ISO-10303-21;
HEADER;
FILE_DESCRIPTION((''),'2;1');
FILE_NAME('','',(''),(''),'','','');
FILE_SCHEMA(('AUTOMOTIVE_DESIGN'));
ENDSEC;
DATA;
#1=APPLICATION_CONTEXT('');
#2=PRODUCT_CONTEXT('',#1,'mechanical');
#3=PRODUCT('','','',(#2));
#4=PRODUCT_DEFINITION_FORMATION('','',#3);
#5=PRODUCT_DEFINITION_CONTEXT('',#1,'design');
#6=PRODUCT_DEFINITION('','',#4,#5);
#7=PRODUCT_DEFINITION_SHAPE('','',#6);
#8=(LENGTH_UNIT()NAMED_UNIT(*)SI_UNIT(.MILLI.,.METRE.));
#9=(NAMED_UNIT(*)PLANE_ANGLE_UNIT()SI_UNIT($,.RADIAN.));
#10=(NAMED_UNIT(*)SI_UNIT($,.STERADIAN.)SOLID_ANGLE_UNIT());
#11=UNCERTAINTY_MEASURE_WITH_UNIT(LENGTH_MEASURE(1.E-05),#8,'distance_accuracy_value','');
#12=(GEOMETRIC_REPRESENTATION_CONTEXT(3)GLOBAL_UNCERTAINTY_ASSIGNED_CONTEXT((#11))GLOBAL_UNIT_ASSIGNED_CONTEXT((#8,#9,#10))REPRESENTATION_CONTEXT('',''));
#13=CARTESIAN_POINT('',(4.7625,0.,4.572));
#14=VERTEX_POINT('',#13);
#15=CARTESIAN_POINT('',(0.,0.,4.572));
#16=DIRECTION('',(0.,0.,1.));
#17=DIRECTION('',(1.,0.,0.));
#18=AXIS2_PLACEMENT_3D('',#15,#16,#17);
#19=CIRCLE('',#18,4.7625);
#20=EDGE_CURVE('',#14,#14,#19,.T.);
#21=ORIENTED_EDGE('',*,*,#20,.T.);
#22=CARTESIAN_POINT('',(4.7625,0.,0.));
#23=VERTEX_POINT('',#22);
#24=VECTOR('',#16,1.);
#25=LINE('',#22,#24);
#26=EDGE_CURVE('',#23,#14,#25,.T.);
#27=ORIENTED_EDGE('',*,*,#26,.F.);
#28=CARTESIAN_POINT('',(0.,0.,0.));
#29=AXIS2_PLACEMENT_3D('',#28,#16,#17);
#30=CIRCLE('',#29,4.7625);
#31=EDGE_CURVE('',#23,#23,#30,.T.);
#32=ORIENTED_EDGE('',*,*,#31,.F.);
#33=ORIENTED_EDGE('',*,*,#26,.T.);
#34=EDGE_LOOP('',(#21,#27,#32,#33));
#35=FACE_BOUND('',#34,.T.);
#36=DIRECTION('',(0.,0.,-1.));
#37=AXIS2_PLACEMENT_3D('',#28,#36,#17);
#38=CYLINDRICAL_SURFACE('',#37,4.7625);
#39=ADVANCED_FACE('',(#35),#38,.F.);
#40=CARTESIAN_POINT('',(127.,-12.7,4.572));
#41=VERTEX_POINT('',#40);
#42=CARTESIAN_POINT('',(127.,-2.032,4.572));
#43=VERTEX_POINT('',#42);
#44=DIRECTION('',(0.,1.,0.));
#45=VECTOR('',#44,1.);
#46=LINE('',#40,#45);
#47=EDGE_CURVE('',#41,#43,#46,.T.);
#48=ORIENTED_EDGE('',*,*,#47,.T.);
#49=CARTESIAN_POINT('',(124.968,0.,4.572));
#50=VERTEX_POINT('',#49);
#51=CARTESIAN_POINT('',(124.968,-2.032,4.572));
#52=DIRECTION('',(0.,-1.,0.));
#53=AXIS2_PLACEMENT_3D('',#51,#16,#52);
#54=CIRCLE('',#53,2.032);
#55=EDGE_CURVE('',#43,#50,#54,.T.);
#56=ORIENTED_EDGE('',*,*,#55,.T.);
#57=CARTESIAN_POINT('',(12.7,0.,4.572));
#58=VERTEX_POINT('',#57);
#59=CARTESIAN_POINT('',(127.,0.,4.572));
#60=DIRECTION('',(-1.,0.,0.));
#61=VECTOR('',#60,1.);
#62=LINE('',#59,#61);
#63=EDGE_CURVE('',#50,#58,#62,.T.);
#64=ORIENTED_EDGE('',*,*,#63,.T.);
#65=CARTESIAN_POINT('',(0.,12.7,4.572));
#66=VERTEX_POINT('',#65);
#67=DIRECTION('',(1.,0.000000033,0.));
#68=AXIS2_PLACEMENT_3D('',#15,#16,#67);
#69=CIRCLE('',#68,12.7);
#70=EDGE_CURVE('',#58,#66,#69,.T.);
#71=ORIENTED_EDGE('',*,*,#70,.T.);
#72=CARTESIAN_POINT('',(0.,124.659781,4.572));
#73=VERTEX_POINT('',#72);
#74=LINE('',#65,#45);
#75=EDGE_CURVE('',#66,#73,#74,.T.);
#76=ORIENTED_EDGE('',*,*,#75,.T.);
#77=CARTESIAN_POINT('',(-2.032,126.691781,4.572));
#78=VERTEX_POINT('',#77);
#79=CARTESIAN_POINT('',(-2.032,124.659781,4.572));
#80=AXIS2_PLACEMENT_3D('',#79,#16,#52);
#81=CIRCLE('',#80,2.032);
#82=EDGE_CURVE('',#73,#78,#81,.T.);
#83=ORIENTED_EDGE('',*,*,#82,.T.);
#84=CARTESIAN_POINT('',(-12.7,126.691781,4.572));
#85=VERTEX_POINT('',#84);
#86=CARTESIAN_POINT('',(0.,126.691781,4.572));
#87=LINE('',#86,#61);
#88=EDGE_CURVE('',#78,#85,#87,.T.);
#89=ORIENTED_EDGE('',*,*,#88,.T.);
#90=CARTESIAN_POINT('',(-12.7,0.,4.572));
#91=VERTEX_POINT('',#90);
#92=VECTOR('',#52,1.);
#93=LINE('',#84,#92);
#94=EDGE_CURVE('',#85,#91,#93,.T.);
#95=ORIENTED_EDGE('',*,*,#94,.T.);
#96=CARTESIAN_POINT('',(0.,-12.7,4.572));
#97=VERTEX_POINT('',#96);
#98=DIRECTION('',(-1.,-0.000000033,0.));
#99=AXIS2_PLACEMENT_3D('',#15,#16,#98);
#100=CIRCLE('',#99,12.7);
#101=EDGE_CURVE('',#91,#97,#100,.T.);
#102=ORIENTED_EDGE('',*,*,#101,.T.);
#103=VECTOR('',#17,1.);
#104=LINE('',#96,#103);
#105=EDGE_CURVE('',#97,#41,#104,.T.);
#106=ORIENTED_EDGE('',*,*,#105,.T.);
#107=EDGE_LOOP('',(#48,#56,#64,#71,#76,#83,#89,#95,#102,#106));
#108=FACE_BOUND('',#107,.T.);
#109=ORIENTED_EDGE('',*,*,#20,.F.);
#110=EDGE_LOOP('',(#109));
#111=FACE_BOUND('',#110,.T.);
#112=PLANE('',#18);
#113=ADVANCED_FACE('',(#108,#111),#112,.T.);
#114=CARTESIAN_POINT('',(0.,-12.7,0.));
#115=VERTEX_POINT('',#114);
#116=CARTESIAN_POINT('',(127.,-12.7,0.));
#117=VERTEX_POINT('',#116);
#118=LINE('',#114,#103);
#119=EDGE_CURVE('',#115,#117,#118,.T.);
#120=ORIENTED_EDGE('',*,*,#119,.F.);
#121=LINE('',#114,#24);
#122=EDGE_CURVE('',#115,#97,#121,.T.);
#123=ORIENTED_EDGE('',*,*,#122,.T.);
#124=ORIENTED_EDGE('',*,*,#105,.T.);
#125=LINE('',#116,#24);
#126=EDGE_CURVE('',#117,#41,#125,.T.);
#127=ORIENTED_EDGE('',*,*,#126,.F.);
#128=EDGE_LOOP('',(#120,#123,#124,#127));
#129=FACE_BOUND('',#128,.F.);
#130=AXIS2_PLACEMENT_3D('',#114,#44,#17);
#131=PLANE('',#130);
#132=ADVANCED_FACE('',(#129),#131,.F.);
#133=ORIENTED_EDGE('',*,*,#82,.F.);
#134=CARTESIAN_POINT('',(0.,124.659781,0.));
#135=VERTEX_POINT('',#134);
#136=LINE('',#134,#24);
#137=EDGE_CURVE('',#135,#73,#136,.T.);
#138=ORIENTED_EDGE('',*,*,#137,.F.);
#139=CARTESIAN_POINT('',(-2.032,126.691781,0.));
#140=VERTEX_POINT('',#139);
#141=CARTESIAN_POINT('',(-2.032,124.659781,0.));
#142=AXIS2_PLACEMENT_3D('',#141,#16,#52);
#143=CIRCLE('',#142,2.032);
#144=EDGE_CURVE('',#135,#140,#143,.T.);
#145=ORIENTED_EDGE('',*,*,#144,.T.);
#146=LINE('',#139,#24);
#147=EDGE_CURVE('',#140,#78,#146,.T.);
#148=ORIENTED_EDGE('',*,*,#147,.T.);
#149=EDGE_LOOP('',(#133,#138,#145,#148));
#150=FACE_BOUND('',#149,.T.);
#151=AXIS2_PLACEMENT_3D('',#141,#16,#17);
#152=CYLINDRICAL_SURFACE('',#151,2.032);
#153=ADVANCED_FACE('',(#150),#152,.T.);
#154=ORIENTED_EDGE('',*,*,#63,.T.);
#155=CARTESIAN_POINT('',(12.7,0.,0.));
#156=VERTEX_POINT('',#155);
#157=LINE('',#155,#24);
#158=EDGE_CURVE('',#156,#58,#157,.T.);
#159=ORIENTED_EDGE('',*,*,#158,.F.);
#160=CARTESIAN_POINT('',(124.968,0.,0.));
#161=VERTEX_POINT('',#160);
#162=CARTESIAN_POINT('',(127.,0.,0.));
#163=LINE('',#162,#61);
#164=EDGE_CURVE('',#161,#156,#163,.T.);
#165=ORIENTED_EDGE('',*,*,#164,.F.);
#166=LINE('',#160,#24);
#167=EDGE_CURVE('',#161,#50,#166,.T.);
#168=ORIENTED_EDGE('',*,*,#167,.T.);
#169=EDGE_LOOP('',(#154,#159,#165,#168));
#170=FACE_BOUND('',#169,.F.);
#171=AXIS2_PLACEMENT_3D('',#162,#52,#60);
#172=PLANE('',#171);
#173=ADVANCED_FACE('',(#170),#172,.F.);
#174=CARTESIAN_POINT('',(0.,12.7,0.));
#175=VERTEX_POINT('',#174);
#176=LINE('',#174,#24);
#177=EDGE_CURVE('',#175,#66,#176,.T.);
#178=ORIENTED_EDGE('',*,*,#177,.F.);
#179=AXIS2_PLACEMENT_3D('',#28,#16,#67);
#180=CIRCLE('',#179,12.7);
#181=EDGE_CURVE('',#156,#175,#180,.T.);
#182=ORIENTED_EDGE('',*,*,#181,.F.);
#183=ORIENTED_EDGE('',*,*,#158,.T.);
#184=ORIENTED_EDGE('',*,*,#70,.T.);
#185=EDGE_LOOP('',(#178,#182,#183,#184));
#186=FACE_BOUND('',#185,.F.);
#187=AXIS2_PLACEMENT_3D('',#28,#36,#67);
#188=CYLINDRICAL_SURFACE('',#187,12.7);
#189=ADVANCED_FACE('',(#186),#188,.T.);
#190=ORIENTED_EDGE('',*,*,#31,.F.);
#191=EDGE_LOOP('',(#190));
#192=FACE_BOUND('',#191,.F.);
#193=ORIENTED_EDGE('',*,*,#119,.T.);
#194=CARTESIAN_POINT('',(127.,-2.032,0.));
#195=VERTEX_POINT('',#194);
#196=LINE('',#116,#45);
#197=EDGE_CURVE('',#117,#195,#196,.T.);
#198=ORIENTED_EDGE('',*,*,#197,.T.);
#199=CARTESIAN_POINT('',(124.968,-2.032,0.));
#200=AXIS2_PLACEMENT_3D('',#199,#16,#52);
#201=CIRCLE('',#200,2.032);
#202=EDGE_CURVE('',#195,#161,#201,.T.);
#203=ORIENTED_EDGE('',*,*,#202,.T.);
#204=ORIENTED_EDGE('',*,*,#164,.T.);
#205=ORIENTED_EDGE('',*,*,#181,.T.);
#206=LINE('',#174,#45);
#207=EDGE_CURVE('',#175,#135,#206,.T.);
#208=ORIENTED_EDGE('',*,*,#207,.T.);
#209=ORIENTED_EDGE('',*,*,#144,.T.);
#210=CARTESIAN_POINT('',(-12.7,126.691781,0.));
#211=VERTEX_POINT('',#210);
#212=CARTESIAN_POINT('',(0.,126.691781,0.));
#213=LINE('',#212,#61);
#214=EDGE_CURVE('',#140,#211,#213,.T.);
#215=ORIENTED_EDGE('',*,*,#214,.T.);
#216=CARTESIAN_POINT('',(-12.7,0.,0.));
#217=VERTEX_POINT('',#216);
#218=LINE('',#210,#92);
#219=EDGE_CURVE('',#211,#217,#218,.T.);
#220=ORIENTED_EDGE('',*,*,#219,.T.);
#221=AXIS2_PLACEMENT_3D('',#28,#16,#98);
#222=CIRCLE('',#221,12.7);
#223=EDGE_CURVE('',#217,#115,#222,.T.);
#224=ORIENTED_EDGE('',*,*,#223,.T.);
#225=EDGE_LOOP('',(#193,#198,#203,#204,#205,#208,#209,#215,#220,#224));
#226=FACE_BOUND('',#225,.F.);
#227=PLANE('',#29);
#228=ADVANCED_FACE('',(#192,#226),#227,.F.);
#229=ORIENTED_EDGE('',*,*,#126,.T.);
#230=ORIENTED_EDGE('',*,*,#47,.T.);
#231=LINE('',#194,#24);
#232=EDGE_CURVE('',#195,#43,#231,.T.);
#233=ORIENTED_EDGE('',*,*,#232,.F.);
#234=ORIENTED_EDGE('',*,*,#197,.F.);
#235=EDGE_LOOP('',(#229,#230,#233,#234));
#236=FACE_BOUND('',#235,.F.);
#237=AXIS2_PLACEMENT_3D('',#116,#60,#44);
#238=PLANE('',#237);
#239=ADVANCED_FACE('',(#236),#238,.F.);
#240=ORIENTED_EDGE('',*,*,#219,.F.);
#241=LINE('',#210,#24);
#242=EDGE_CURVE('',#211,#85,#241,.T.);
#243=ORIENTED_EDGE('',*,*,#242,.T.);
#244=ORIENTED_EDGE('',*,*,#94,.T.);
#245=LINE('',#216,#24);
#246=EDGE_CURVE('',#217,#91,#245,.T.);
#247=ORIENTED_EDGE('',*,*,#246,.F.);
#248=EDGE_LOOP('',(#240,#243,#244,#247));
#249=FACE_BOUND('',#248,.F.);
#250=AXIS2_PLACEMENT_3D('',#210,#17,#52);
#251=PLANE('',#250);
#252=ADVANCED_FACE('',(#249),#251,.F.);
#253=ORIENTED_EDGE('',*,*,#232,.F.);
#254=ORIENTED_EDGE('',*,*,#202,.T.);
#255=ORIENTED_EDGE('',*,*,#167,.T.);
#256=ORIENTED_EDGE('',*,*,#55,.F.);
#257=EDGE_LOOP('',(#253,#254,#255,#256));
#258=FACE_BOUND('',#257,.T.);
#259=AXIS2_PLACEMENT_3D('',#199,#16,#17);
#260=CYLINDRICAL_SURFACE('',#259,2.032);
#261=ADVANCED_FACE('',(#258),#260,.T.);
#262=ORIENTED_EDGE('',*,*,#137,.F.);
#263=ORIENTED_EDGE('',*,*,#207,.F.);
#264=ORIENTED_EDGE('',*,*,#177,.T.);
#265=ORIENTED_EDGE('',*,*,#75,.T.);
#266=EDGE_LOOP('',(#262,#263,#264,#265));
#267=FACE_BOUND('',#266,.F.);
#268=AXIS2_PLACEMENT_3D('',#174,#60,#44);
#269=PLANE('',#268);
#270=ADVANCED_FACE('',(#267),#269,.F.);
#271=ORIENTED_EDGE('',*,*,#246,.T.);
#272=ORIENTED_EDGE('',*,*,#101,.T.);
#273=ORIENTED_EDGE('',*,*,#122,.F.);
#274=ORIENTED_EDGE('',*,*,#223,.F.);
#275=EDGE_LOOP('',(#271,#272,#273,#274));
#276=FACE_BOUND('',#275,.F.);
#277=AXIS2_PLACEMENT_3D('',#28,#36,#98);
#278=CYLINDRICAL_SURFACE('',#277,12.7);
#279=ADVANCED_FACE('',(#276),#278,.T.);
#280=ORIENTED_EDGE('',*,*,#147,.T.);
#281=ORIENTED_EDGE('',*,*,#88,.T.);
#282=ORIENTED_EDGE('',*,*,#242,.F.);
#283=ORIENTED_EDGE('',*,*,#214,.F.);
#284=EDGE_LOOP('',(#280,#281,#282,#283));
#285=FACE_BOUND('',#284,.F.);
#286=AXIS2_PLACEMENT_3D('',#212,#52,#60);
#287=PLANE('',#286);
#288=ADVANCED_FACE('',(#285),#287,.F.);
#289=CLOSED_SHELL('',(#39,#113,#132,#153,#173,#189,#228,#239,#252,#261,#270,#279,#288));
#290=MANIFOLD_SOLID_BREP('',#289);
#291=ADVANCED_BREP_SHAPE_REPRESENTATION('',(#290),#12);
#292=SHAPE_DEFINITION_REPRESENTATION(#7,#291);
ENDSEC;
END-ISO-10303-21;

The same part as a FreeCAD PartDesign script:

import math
import FreeCAD as App
import Part
import Sketcher
from FreeCAD import Vector
Q = App.Units.Quantity


def edges_at(feature, points):
    """Names of the edges that pass closest to the given points."""
    edges = feature.Shape.Edges
    near = lambda p: min(range(len(edges)), key=lambda i: edges[i].distToShape(Part.Vertex(*p))[0])
    return sorted({f"Edge{near(p) + 1}" for p in points})

doc = App.newDocument("Part")
body = doc.addObject("PartDesign::Body", "Body")

# Sketch on XY plane
sketch1 = body.newObject("Sketcher::SketchObject", "Sketch")
sketch1.AttachmentSupport = (doc.getObject("XY_Plane"), [""])
sketch1.MapMode = "FlatFace"
sketch1.addGeometry([
    Part.ArcOfCircle(Part.Circle(Vector(0, 0, 0), Vector(0, 0, 1), 12.7), math.radians(-180), math.radians(-90)),  # 0
    Part.LineSegment(Vector(0, -12.7, 0), Vector(127, -12.7, 0)),  # 1
    Part.LineSegment(Vector(127, -12.7, 0), Vector(127, 0, 0)),  # 2
    Part.LineSegment(Vector(127, 0, 0), Vector(12.7, 0, 0)),  # 3
    Part.ArcOfCircle(Part.Circle(Vector(0, 0, 0), Vector(0, 0, 1), 12.7), math.radians(0), math.radians(90)),  # 4
    Part.LineSegment(Vector(0, 12.7, 0), Vector(0, 126.7, 0)),  # 5
    Part.LineSegment(Vector(0, 126.7, 0), Vector(-12.7, 126.7, 0)),  # 6
    Part.LineSegment(Vector(-12.7, 126.7, 0), Vector(-12.7, 0, 0)),  # 7
    Part.Circle(Vector(0, 0, 0), Vector(0, 0, 1), 4.8),  # 8
], False)
sketch1.addConstraint([
    Sketcher.Constraint("Tangent", 0, 2, 1, 1),
    Sketcher.Constraint("Coincident", 1, 2, 2, 1),
    Sketcher.Constraint("Coincident", 2, 2, 3, 1),
    Sketcher.Constraint("Coincident", 3, 2, 4, 1),
    Sketcher.Constraint("Coincident", 4, 2, 5, 1),
    Sketcher.Constraint("Coincident", 5, 2, 6, 1),
    Sketcher.Constraint("Coincident", 6, 2, 7, 1),
    Sketcher.Constraint("Tangent", 7, 2, 0, 1),
    Sketcher.Constraint("Horizontal", 1),
    Sketcher.Constraint("Vertical", 2),
    Sketcher.Constraint("Horizontal", 3),
    Sketcher.Constraint("Vertical", 5),
    Sketcher.Constraint("Horizontal", 6),
    Sketcher.Constraint("Vertical", 7),
    Sketcher.Constraint("Coincident", 0, 3, -1, 1),
    Sketcher.Constraint("Coincident", 4, 3, -1, 1),
    Sketcher.Constraint("Coincident", 8, 3, -1, 1),
    Sketcher.Constraint("Equal", 0, 4),
    Sketcher.Constraint("PointOnObject", 2, 2, -1),
    Sketcher.Constraint("PointOnObject", 4, 2, -2),
    Sketcher.Constraint("Radius", 0, Q("0.5 in")),
    Sketcher.Constraint("DistanceX", 1, 1, 1, 2, Q("5 in")),
    Sketcher.Constraint("Diameter", 8, Q("0.375 in")),
    Sketcher.Constraint("DistanceY", 5, 1, 5, 2, Q("113.991781 mm")),
])
pad1 = body.newObject("PartDesign::Pad", "Pad")
pad1.Profile = sketch1
pad1.Length = Q("0.18 in")
doc.recompute()

fillet = body.newObject("PartDesign::Fillet", "Fillet")
fillet.Base = (pad1, edges_at(pad1, [(0, 126.692, 2.286), (127, 0, 2.286)]))
fillet.Radius = Q("0.08 in")

doc.recompute()
